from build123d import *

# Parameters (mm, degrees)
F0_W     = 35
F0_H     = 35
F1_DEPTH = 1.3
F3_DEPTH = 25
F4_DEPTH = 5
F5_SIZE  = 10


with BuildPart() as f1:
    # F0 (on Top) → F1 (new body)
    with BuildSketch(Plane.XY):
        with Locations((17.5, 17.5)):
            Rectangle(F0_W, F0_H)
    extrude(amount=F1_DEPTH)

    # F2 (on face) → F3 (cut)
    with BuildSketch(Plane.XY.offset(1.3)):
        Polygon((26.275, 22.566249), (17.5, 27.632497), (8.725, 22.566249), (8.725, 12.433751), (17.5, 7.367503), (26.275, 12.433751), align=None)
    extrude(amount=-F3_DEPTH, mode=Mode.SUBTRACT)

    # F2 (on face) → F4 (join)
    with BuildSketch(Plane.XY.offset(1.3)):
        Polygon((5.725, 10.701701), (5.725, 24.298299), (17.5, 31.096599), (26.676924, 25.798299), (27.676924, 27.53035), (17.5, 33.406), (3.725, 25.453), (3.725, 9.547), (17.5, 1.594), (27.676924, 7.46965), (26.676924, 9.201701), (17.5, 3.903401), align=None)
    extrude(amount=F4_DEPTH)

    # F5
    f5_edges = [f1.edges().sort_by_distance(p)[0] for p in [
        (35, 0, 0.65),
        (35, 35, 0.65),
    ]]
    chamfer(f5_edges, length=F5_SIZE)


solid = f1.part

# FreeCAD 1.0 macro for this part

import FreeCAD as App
import Part
import Sketcher

V = App.Vector
Q = App.Units.Quantity


def edges_at(feature, points):
    """Names of the edges that pass closest to the given points."""
    edges = feature.Shape.Edges
    near = lambda p: min(range(len(edges)), key=lambda i: edges[i].distToShape(Part.Vertex(*p))[0])
    return sorted({f"Edge{near(p) + 1}" for p in points})

doc = App.newDocument("Part")
body = doc.addObject("PartDesign::Body", "Body")

sketch1 = doc.addObject("Sketcher::SketchObject", "Sketch")
body.addObject(sketch1)
sketch1.AttachmentSupport = (doc.XY_Plane, [""])
sketch1.MapMode = "FlatFace"
sketch1.addGeometry([
    Part.LineSegment(V(0, 35, 0), V(0, 0, 0)),
    Part.LineSegment(V(0, 0, 0), V(35, 0, 0)),
    Part.LineSegment(V(35, 0, 0), V(35, 35, 0)),
    Part.LineSegment(V(35, 35, 0), V(0, 35, 0)),
], False)
sketch1.addConstraint([
    Sketcher.Constraint("Coincident", 0, 2, 1, 1),
    Sketcher.Constraint("Coincident", 1, 2, 2, 1),
    Sketcher.Constraint("Coincident", 2, 2, 3, 1),
    Sketcher.Constraint("Coincident", 3, 2, 0, 1),
    Sketcher.Constraint("Vertical", 0),
    Sketcher.Constraint("Horizontal", 1),
    Sketcher.Constraint("Vertical", 2),
    Sketcher.Constraint("Horizontal", 3),
    Sketcher.Constraint("Coincident", 0, 2, -1, 1),
    Sketcher.Constraint("Equal", 3, 0),
    Sketcher.Constraint("DistanceX", 1, 1, 1, 2, 35.0),
])
pad1 = doc.addObject("PartDesign::Pad", "Pad")
body.addObject(pad1)
pad1.Profile = sketch1
pad1.Length = 1.3

sketch2 = doc.addObject("Sketcher::SketchObject", "Sketch001")
body.addObject(sketch2)
sketch2.AttachmentSupport = (doc.XY_Plane, [""])
sketch2.MapMode = "FlatFace"
sketch2.AttachmentOffset = App.Placement(V(0, 0, 1.3), App.Rotation())
sketch2.addGeometry([
    Part.LineSegment(V(26, 23, 0), V(18, 28, 0)),
    Part.LineSegment(V(18, 28, 0), V(9, 23, 0)),
    Part.LineSegment(V(9, 23, 0), V(9, 12, 0)),
    Part.LineSegment(V(9, 12, 0), V(18, 7, 0)),
    Part.LineSegment(V(18, 7, 0), V(26, 12, 0)),
    Part.LineSegment(V(26, 12, 0), V(26, 23, 0)),
], False)
sketch2.addConstraint([
    Sketcher.Constraint("Coincident", 0, 2, 1, 1),
    Sketcher.Constraint("Coincident", 1, 2, 2, 1),
    Sketcher.Constraint("Coincident", 2, 2, 3, 1),
    Sketcher.Constraint("Coincident", 3, 2, 4, 1),
    Sketcher.Constraint("Coincident", 4, 2, 5, 1),
    Sketcher.Constraint("Coincident", 5, 2, 0, 1),
    Sketcher.Constraint("Vertical", 2),
    Sketcher.Constraint("Vertical", 5),
    Sketcher.Constraint("Parallel", 0, 3),
    Sketcher.Constraint("Parallel", 1, 4),
    Sketcher.Constraint("Horizontal", 2, 2, 4, 2),
    Sketcher.Constraint("Horizontal", 1, 2, 5, 2),
    Sketcher.Constraint("Vertical", 0, 2, 3, 2),
    Sketcher.Constraint("Angle", 0, Q("150.000003 deg")),
    Sketcher.Constraint("DistanceX", -1, 1, 0, 2, 17.5),
    Sketcher.Constraint("DistanceX", 2, 2, 4, 2, 17.55),
    Sketcher.Constraint("DistanceY", 2, 2, 2, 1, 10.132498),
    Sketcher.Constraint("DistanceY", -1, 1, 1, 2, 22.566249),
])
pocket1 = doc.addObject("PartDesign::Pocket", "Pocket")
body.addObject(pocket1)
pocket1.Profile = sketch2
pocket1.Length = 25

sketch3 = doc.addObject("Sketcher::SketchObject", "Sketch002")
body.addObject(sketch3)
sketch3.AttachmentSupport = (doc.XY_Plane, [""])
sketch3.MapMode = "FlatFace"
sketch3.AttachmentOffset = App.Placement(V(0, 0, 1.3), App.Rotation())
sketch3.addGeometry([
    Part.LineSegment(V(5.7, 10.7, 0), V(5.7, 24.3, 0)),
    Part.LineSegment(V(5.7, 24.3, 0), V(17.5, 31.1, 0)),
    Part.LineSegment(V(17.5, 31.1, 0), V(26.7, 25.8, 0)),
    Part.LineSegment(V(26.7, 25.8, 0), V(27.7, 27.5, 0)),
    Part.LineSegment(V(27.7, 27.5, 0), V(17.5, 33.4, 0)),
    Part.LineSegment(V(17.5, 33.4, 0), V(3.7, 25.5, 0)),
    Part.LineSegment(V(3.7, 25.5, 0), V(3.7, 9.5, 0)),
    Part.LineSegment(V(3.7, 9.5, 0), V(17.5, 1.6, 0)),
    Part.LineSegment(V(17.5, 1.6, 0), V(27.7, 7.5, 0)),
    Part.LineSegment(V(27.7, 7.5, 0), V(26.7, 9.2, 0)),
    Part.LineSegment(V(26.7, 9.2, 0), V(17.5, 3.9, 0)),
    Part.LineSegment(V(17.5, 3.9, 0), V(5.7, 10.7, 0)),
], False)
sketch3.addConstraint([
    Sketcher.Constraint("Coincident", 0, 2, 1, 1),
    Sketcher.Constraint("Coincident", 1, 2, 2, 1),
    Sketcher.Constraint("Coincident", 2, 2, 3, 1),
    Sketcher.Constraint("Coincident", 3, 2, 4, 1),
    Sketcher.Constraint("Coincident", 4, 2, 5, 1),
    Sketcher.Constraint("Coincident", 5, 2, 6, 1),
    Sketcher.Constraint("Coincident", 6, 2, 7, 1),
    Sketcher.Constraint("Coincident", 7, 2, 8, 1),
    Sketcher.Constraint("Coincident", 8, 2, 9, 1),
    Sketcher.Constraint("Coincident", 9, 2, 10, 1),
    Sketcher.Constraint("Coincident", 10, 2, 11, 1),
    Sketcher.Constraint("Coincident", 11, 2, 0, 1),
    Sketcher.Constraint("Vertical", 0),
    Sketcher.Constraint("Vertical", 6),
    Sketcher.Constraint("Perpendicular", 2, 3),
    Sketcher.Constraint("Perpendicular", 3, 4),
    Sketcher.Constraint("Parallel", 1, 5),
    Sketcher.Constraint("Parallel", 4, 7),
    Sketcher.Constraint("Parallel", 5, 8),
    Sketcher.Constraint("Perpendicular", 8, 9),
    Sketcher.Constraint("Perpendicular", 9, 10),
    Sketcher.Constraint("Parallel", 7, 11),
    Sketcher.Constraint("Vertical", 1, 2, 4, 2),
    Sketcher.Constraint("Vertical", 4, 2, 7, 2),
    Sketcher.Constraint("Vertical", 3, 2, 8, 2),
    Sketcher.Constraint("Vertical", 2, 2, 9, 2),
    Sketcher.Constraint("Vertical", 7, 2, 10, 2),
    Sketcher.Constraint("Equal", 5, 7),
    Sketcher.Constraint("Angle", 1, Q("30.000002 deg")),
    Sketcher.Constraint("Distance", 3, 2.0),
    Sketcher.Constraint("DistanceX", 5, 2, 0, 2, 2.0),
    Sketcher.Constraint("DistanceX", -1, 1, 1, 2, 17.5),
    Sketcher.Constraint("DistanceY", 0, 2, 2, 2, 1.5),
    Sketcher.Constraint("DistanceY", 6, 2, 6, 1, 15.906),
    Sketcher.Constraint("Distance", 5, 15.906),
    Sketcher.Constraint("DistanceY", -1, 1, 4, 2, 33.406),
])
pad2 = doc.addObject("PartDesign::Pad", "Pad001")
body.addObject(pad2)
pad2.Profile = sketch3
pad2.Length = 5
doc.recompute()

chamfer = doc.addObject("PartDesign::Chamfer", "Chamfer")
body.addObject(chamfer)
chamfer.Base = (pad2, edges_at(pad2, [(35, 0, 0.65), (35, 35, 0.65)]))
chamfer.Size = 10

doc.recompute()
